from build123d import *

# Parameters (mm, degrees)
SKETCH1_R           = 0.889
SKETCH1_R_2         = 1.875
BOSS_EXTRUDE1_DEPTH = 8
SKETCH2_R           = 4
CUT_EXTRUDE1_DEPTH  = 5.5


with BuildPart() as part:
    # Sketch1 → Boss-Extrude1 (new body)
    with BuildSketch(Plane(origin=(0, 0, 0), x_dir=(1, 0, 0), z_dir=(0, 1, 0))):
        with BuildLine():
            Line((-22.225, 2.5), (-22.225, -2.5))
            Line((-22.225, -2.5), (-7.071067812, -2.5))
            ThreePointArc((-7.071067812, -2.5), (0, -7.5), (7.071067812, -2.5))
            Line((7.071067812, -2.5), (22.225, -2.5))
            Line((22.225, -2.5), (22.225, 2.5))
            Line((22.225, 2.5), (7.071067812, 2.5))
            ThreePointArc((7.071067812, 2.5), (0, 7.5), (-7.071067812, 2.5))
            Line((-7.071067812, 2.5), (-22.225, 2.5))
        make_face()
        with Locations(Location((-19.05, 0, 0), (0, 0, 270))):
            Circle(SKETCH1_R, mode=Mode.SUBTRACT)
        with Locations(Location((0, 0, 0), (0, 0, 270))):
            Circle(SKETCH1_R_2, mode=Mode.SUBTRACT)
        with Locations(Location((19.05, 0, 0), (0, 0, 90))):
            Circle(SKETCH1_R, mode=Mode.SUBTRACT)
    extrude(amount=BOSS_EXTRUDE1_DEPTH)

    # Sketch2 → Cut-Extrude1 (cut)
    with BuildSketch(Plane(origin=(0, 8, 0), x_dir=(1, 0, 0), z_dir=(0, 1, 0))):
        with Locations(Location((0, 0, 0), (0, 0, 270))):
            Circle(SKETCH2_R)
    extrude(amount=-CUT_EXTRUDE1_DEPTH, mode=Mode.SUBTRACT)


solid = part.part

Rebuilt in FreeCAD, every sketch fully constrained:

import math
import FreeCAD as App
import Part
import Sketcher

doc = App.newDocument("Part")
body = doc.addObject("PartDesign::Body", "Body")

# Sketch on XZ plane
sketch1 = body.newObject("Sketcher::SketchObject", "Sketch")
sketch1.AttachmentSupport = (doc.getObject("XZ_Plane"), [""])
sketch1.MapMode = "FlatFace"
sketch1.addGeometry(Part.LineSegment(App.Vector(-22.2, -2.5, 0), App.Vector(-22.2, 2.5, 0)), False)
sketch1.addGeometry(Part.LineSegment(App.Vector(-22.2, 2.5, 0), App.Vector(-7.1, 2.5, 0)), False)
sketch1.addGeometry(Part.ArcOfCircle(Part.Circle(App.Vector(0, 0, 0), App.Vector(0, 0, 1), 7.5), math.radians(19), math.radians(161)), False)
sketch1.addGeometry(Part.LineSegment(App.Vector(7.1, 2.5, 0), App.Vector(22.2, 2.5, 0)), False)
sketch1.addGeometry(Part.LineSegment(App.Vector(22.2, 2.5, 0), App.Vector(22.2, -2.5, 0)), False)
sketch1.addGeometry(Part.LineSegment(App.Vector(22.2, -2.5, 0), App.Vector(7.1, -2.5, 0)), False)
sketch1.addGeometry(Part.ArcOfCircle(Part.Circle(App.Vector(0, 0, 0), App.Vector(0, 0, 1), 7.5), math.radians(-161), math.radians(-19)), False)
sketch1.addGeometry(Part.LineSegment(App.Vector(-7.1, -2.5, 0), App.Vector(-22.2, -2.5, 0)), False)
sketch1.addGeometry(Part.Circle(App.Vector(-19.1, 0, 0), App.Vector(0, 0, 1), 0.9), False)
sketch1.addGeometry(Part.Circle(App.Vector(0, 0, 0), App.Vector(0, 0, 1), 1.9), False)
sketch1.addGeometry(Part.Circle(App.Vector(19.1, 0, 0), App.Vector(0, 0, 1), 0.9), False)
sketch1.addConstraint(Sketcher.Constraint("Coincident", 0, 2, 1, 1))
sketch1.addConstraint(Sketcher.Constraint("Coincident", 1, 2, 2, 2))
sketch1.addConstraint(Sketcher.Constraint("Coincident", 2, 1, 3, 1))
sketch1.addConstraint(Sketcher.Constraint("Coincident", 3, 2, 4, 1))
sketch1.addConstraint(Sketcher.Constraint("Coincident", 4, 2, 5, 1))
sketch1.addConstraint(Sketcher.Constraint("Coincident", 5, 2, 6, 2))
sketch1.addConstraint(Sketcher.Constraint("Coincident", 6, 1, 7, 1))
sketch1.addConstraint(Sketcher.Constraint("Coincident", 7, 2, 0, 1))
sketch1.addConstraint(Sketcher.Constraint("Vertical", 0))
sketch1.addConstraint(Sketcher.Constraint("Horizontal", 1))
sketch1.addConstraint(Sketcher.Constraint("Horizontal", 3))
sketch1.addConstraint(Sketcher.Constraint("Vertical", 4))
sketch1.addConstraint(Sketcher.Constraint("Horizontal", 5))
sketch1.addConstraint(Sketcher.Constraint("Horizontal", 7))
sketch1.addConstraint(Sketcher.Constraint("Coincident", 2, 3, -1, 1))
sketch1.addConstraint(Sketcher.Constraint("Coincident", 6, 3, -1, 1))
sketch1.addConstraint(Sketcher.Constraint("Coincident", 9, 3, -1, 1))
sketch1.addConstraint(Sketcher.Constraint("Equal", 2, 6))
sketch1.addConstraint(Sketcher.Constraint("Equal", 8, 10))
sketch1.addConstraint(Sketcher.Constraint("Symmetric", 8, 3, 10, 3, -1, 1))
sketch1.addConstraint(Sketcher.Constraint("Symmetric", 0, 2, 4, 2, -1, 1))
sketch1.addConstraint(Sketcher.Constraint("PointOnObject", 8, 3, -1))
sketch1.addConstraint(Sketcher.Constraint("Horizontal", 1, 2, 2, 1))
sketch1.addConstraint(Sketcher.Constraint("Horizontal", 5, 2, 6, 1))
sketch1.addConstraint(Sketcher.Constraint("Radius", 2, 7.5))
sketch1.addConstraint(Sketcher.Constraint("Diameter", 9, 3.75))
sketch1.addConstraint(Sketcher.Constraint("DistanceY", 0, 1, 0, 2, 5.0))
sketch1.addConstraint(Sketcher.Constraint("Diameter", 8, 1.778))
sketch1.addConstraint(Sketcher.Constraint("DistanceX", 8, 3, 10, 3, 38.1))
sketch1.addConstraint(Sketcher.Constraint("DistanceX", 0, 2, -1, 1, 22.225))
pad1 = body.newObject("PartDesign::Pad", "Pad")
pad1.Profile = sketch1
pad1.Length = 8
pad1.Reversed = True

# Sketch on XZ plane
sketch2 = body.newObject("Sketcher::SketchObject", "Sketch001")
sketch2.AttachmentSupport = (doc.getObject("XZ_Plane"), [""])
sketch2.MapMode = "FlatFace"
sketch2.AttachmentOffset = App.Placement(App.Vector(0, 0, -8), App.Rotation())
sketch2.addGeometry(Part.Circle(App.Vector(0, 0, 0), App.Vector(0, 0, 1), 4), False)
sketch2.addConstraint(Sketcher.Constraint("Coincident", 0, 3, -1, 1))
sketch2.addConstraint(Sketcher.Constraint("Diameter", 0, 8.0))
pocket1 = body.newObject("PartDesign::Pocket", "Pocket")
pocket1.Profile = sketch2
pocket1.Length = 5.5
pocket1.Reversed = True

doc.recompute()
